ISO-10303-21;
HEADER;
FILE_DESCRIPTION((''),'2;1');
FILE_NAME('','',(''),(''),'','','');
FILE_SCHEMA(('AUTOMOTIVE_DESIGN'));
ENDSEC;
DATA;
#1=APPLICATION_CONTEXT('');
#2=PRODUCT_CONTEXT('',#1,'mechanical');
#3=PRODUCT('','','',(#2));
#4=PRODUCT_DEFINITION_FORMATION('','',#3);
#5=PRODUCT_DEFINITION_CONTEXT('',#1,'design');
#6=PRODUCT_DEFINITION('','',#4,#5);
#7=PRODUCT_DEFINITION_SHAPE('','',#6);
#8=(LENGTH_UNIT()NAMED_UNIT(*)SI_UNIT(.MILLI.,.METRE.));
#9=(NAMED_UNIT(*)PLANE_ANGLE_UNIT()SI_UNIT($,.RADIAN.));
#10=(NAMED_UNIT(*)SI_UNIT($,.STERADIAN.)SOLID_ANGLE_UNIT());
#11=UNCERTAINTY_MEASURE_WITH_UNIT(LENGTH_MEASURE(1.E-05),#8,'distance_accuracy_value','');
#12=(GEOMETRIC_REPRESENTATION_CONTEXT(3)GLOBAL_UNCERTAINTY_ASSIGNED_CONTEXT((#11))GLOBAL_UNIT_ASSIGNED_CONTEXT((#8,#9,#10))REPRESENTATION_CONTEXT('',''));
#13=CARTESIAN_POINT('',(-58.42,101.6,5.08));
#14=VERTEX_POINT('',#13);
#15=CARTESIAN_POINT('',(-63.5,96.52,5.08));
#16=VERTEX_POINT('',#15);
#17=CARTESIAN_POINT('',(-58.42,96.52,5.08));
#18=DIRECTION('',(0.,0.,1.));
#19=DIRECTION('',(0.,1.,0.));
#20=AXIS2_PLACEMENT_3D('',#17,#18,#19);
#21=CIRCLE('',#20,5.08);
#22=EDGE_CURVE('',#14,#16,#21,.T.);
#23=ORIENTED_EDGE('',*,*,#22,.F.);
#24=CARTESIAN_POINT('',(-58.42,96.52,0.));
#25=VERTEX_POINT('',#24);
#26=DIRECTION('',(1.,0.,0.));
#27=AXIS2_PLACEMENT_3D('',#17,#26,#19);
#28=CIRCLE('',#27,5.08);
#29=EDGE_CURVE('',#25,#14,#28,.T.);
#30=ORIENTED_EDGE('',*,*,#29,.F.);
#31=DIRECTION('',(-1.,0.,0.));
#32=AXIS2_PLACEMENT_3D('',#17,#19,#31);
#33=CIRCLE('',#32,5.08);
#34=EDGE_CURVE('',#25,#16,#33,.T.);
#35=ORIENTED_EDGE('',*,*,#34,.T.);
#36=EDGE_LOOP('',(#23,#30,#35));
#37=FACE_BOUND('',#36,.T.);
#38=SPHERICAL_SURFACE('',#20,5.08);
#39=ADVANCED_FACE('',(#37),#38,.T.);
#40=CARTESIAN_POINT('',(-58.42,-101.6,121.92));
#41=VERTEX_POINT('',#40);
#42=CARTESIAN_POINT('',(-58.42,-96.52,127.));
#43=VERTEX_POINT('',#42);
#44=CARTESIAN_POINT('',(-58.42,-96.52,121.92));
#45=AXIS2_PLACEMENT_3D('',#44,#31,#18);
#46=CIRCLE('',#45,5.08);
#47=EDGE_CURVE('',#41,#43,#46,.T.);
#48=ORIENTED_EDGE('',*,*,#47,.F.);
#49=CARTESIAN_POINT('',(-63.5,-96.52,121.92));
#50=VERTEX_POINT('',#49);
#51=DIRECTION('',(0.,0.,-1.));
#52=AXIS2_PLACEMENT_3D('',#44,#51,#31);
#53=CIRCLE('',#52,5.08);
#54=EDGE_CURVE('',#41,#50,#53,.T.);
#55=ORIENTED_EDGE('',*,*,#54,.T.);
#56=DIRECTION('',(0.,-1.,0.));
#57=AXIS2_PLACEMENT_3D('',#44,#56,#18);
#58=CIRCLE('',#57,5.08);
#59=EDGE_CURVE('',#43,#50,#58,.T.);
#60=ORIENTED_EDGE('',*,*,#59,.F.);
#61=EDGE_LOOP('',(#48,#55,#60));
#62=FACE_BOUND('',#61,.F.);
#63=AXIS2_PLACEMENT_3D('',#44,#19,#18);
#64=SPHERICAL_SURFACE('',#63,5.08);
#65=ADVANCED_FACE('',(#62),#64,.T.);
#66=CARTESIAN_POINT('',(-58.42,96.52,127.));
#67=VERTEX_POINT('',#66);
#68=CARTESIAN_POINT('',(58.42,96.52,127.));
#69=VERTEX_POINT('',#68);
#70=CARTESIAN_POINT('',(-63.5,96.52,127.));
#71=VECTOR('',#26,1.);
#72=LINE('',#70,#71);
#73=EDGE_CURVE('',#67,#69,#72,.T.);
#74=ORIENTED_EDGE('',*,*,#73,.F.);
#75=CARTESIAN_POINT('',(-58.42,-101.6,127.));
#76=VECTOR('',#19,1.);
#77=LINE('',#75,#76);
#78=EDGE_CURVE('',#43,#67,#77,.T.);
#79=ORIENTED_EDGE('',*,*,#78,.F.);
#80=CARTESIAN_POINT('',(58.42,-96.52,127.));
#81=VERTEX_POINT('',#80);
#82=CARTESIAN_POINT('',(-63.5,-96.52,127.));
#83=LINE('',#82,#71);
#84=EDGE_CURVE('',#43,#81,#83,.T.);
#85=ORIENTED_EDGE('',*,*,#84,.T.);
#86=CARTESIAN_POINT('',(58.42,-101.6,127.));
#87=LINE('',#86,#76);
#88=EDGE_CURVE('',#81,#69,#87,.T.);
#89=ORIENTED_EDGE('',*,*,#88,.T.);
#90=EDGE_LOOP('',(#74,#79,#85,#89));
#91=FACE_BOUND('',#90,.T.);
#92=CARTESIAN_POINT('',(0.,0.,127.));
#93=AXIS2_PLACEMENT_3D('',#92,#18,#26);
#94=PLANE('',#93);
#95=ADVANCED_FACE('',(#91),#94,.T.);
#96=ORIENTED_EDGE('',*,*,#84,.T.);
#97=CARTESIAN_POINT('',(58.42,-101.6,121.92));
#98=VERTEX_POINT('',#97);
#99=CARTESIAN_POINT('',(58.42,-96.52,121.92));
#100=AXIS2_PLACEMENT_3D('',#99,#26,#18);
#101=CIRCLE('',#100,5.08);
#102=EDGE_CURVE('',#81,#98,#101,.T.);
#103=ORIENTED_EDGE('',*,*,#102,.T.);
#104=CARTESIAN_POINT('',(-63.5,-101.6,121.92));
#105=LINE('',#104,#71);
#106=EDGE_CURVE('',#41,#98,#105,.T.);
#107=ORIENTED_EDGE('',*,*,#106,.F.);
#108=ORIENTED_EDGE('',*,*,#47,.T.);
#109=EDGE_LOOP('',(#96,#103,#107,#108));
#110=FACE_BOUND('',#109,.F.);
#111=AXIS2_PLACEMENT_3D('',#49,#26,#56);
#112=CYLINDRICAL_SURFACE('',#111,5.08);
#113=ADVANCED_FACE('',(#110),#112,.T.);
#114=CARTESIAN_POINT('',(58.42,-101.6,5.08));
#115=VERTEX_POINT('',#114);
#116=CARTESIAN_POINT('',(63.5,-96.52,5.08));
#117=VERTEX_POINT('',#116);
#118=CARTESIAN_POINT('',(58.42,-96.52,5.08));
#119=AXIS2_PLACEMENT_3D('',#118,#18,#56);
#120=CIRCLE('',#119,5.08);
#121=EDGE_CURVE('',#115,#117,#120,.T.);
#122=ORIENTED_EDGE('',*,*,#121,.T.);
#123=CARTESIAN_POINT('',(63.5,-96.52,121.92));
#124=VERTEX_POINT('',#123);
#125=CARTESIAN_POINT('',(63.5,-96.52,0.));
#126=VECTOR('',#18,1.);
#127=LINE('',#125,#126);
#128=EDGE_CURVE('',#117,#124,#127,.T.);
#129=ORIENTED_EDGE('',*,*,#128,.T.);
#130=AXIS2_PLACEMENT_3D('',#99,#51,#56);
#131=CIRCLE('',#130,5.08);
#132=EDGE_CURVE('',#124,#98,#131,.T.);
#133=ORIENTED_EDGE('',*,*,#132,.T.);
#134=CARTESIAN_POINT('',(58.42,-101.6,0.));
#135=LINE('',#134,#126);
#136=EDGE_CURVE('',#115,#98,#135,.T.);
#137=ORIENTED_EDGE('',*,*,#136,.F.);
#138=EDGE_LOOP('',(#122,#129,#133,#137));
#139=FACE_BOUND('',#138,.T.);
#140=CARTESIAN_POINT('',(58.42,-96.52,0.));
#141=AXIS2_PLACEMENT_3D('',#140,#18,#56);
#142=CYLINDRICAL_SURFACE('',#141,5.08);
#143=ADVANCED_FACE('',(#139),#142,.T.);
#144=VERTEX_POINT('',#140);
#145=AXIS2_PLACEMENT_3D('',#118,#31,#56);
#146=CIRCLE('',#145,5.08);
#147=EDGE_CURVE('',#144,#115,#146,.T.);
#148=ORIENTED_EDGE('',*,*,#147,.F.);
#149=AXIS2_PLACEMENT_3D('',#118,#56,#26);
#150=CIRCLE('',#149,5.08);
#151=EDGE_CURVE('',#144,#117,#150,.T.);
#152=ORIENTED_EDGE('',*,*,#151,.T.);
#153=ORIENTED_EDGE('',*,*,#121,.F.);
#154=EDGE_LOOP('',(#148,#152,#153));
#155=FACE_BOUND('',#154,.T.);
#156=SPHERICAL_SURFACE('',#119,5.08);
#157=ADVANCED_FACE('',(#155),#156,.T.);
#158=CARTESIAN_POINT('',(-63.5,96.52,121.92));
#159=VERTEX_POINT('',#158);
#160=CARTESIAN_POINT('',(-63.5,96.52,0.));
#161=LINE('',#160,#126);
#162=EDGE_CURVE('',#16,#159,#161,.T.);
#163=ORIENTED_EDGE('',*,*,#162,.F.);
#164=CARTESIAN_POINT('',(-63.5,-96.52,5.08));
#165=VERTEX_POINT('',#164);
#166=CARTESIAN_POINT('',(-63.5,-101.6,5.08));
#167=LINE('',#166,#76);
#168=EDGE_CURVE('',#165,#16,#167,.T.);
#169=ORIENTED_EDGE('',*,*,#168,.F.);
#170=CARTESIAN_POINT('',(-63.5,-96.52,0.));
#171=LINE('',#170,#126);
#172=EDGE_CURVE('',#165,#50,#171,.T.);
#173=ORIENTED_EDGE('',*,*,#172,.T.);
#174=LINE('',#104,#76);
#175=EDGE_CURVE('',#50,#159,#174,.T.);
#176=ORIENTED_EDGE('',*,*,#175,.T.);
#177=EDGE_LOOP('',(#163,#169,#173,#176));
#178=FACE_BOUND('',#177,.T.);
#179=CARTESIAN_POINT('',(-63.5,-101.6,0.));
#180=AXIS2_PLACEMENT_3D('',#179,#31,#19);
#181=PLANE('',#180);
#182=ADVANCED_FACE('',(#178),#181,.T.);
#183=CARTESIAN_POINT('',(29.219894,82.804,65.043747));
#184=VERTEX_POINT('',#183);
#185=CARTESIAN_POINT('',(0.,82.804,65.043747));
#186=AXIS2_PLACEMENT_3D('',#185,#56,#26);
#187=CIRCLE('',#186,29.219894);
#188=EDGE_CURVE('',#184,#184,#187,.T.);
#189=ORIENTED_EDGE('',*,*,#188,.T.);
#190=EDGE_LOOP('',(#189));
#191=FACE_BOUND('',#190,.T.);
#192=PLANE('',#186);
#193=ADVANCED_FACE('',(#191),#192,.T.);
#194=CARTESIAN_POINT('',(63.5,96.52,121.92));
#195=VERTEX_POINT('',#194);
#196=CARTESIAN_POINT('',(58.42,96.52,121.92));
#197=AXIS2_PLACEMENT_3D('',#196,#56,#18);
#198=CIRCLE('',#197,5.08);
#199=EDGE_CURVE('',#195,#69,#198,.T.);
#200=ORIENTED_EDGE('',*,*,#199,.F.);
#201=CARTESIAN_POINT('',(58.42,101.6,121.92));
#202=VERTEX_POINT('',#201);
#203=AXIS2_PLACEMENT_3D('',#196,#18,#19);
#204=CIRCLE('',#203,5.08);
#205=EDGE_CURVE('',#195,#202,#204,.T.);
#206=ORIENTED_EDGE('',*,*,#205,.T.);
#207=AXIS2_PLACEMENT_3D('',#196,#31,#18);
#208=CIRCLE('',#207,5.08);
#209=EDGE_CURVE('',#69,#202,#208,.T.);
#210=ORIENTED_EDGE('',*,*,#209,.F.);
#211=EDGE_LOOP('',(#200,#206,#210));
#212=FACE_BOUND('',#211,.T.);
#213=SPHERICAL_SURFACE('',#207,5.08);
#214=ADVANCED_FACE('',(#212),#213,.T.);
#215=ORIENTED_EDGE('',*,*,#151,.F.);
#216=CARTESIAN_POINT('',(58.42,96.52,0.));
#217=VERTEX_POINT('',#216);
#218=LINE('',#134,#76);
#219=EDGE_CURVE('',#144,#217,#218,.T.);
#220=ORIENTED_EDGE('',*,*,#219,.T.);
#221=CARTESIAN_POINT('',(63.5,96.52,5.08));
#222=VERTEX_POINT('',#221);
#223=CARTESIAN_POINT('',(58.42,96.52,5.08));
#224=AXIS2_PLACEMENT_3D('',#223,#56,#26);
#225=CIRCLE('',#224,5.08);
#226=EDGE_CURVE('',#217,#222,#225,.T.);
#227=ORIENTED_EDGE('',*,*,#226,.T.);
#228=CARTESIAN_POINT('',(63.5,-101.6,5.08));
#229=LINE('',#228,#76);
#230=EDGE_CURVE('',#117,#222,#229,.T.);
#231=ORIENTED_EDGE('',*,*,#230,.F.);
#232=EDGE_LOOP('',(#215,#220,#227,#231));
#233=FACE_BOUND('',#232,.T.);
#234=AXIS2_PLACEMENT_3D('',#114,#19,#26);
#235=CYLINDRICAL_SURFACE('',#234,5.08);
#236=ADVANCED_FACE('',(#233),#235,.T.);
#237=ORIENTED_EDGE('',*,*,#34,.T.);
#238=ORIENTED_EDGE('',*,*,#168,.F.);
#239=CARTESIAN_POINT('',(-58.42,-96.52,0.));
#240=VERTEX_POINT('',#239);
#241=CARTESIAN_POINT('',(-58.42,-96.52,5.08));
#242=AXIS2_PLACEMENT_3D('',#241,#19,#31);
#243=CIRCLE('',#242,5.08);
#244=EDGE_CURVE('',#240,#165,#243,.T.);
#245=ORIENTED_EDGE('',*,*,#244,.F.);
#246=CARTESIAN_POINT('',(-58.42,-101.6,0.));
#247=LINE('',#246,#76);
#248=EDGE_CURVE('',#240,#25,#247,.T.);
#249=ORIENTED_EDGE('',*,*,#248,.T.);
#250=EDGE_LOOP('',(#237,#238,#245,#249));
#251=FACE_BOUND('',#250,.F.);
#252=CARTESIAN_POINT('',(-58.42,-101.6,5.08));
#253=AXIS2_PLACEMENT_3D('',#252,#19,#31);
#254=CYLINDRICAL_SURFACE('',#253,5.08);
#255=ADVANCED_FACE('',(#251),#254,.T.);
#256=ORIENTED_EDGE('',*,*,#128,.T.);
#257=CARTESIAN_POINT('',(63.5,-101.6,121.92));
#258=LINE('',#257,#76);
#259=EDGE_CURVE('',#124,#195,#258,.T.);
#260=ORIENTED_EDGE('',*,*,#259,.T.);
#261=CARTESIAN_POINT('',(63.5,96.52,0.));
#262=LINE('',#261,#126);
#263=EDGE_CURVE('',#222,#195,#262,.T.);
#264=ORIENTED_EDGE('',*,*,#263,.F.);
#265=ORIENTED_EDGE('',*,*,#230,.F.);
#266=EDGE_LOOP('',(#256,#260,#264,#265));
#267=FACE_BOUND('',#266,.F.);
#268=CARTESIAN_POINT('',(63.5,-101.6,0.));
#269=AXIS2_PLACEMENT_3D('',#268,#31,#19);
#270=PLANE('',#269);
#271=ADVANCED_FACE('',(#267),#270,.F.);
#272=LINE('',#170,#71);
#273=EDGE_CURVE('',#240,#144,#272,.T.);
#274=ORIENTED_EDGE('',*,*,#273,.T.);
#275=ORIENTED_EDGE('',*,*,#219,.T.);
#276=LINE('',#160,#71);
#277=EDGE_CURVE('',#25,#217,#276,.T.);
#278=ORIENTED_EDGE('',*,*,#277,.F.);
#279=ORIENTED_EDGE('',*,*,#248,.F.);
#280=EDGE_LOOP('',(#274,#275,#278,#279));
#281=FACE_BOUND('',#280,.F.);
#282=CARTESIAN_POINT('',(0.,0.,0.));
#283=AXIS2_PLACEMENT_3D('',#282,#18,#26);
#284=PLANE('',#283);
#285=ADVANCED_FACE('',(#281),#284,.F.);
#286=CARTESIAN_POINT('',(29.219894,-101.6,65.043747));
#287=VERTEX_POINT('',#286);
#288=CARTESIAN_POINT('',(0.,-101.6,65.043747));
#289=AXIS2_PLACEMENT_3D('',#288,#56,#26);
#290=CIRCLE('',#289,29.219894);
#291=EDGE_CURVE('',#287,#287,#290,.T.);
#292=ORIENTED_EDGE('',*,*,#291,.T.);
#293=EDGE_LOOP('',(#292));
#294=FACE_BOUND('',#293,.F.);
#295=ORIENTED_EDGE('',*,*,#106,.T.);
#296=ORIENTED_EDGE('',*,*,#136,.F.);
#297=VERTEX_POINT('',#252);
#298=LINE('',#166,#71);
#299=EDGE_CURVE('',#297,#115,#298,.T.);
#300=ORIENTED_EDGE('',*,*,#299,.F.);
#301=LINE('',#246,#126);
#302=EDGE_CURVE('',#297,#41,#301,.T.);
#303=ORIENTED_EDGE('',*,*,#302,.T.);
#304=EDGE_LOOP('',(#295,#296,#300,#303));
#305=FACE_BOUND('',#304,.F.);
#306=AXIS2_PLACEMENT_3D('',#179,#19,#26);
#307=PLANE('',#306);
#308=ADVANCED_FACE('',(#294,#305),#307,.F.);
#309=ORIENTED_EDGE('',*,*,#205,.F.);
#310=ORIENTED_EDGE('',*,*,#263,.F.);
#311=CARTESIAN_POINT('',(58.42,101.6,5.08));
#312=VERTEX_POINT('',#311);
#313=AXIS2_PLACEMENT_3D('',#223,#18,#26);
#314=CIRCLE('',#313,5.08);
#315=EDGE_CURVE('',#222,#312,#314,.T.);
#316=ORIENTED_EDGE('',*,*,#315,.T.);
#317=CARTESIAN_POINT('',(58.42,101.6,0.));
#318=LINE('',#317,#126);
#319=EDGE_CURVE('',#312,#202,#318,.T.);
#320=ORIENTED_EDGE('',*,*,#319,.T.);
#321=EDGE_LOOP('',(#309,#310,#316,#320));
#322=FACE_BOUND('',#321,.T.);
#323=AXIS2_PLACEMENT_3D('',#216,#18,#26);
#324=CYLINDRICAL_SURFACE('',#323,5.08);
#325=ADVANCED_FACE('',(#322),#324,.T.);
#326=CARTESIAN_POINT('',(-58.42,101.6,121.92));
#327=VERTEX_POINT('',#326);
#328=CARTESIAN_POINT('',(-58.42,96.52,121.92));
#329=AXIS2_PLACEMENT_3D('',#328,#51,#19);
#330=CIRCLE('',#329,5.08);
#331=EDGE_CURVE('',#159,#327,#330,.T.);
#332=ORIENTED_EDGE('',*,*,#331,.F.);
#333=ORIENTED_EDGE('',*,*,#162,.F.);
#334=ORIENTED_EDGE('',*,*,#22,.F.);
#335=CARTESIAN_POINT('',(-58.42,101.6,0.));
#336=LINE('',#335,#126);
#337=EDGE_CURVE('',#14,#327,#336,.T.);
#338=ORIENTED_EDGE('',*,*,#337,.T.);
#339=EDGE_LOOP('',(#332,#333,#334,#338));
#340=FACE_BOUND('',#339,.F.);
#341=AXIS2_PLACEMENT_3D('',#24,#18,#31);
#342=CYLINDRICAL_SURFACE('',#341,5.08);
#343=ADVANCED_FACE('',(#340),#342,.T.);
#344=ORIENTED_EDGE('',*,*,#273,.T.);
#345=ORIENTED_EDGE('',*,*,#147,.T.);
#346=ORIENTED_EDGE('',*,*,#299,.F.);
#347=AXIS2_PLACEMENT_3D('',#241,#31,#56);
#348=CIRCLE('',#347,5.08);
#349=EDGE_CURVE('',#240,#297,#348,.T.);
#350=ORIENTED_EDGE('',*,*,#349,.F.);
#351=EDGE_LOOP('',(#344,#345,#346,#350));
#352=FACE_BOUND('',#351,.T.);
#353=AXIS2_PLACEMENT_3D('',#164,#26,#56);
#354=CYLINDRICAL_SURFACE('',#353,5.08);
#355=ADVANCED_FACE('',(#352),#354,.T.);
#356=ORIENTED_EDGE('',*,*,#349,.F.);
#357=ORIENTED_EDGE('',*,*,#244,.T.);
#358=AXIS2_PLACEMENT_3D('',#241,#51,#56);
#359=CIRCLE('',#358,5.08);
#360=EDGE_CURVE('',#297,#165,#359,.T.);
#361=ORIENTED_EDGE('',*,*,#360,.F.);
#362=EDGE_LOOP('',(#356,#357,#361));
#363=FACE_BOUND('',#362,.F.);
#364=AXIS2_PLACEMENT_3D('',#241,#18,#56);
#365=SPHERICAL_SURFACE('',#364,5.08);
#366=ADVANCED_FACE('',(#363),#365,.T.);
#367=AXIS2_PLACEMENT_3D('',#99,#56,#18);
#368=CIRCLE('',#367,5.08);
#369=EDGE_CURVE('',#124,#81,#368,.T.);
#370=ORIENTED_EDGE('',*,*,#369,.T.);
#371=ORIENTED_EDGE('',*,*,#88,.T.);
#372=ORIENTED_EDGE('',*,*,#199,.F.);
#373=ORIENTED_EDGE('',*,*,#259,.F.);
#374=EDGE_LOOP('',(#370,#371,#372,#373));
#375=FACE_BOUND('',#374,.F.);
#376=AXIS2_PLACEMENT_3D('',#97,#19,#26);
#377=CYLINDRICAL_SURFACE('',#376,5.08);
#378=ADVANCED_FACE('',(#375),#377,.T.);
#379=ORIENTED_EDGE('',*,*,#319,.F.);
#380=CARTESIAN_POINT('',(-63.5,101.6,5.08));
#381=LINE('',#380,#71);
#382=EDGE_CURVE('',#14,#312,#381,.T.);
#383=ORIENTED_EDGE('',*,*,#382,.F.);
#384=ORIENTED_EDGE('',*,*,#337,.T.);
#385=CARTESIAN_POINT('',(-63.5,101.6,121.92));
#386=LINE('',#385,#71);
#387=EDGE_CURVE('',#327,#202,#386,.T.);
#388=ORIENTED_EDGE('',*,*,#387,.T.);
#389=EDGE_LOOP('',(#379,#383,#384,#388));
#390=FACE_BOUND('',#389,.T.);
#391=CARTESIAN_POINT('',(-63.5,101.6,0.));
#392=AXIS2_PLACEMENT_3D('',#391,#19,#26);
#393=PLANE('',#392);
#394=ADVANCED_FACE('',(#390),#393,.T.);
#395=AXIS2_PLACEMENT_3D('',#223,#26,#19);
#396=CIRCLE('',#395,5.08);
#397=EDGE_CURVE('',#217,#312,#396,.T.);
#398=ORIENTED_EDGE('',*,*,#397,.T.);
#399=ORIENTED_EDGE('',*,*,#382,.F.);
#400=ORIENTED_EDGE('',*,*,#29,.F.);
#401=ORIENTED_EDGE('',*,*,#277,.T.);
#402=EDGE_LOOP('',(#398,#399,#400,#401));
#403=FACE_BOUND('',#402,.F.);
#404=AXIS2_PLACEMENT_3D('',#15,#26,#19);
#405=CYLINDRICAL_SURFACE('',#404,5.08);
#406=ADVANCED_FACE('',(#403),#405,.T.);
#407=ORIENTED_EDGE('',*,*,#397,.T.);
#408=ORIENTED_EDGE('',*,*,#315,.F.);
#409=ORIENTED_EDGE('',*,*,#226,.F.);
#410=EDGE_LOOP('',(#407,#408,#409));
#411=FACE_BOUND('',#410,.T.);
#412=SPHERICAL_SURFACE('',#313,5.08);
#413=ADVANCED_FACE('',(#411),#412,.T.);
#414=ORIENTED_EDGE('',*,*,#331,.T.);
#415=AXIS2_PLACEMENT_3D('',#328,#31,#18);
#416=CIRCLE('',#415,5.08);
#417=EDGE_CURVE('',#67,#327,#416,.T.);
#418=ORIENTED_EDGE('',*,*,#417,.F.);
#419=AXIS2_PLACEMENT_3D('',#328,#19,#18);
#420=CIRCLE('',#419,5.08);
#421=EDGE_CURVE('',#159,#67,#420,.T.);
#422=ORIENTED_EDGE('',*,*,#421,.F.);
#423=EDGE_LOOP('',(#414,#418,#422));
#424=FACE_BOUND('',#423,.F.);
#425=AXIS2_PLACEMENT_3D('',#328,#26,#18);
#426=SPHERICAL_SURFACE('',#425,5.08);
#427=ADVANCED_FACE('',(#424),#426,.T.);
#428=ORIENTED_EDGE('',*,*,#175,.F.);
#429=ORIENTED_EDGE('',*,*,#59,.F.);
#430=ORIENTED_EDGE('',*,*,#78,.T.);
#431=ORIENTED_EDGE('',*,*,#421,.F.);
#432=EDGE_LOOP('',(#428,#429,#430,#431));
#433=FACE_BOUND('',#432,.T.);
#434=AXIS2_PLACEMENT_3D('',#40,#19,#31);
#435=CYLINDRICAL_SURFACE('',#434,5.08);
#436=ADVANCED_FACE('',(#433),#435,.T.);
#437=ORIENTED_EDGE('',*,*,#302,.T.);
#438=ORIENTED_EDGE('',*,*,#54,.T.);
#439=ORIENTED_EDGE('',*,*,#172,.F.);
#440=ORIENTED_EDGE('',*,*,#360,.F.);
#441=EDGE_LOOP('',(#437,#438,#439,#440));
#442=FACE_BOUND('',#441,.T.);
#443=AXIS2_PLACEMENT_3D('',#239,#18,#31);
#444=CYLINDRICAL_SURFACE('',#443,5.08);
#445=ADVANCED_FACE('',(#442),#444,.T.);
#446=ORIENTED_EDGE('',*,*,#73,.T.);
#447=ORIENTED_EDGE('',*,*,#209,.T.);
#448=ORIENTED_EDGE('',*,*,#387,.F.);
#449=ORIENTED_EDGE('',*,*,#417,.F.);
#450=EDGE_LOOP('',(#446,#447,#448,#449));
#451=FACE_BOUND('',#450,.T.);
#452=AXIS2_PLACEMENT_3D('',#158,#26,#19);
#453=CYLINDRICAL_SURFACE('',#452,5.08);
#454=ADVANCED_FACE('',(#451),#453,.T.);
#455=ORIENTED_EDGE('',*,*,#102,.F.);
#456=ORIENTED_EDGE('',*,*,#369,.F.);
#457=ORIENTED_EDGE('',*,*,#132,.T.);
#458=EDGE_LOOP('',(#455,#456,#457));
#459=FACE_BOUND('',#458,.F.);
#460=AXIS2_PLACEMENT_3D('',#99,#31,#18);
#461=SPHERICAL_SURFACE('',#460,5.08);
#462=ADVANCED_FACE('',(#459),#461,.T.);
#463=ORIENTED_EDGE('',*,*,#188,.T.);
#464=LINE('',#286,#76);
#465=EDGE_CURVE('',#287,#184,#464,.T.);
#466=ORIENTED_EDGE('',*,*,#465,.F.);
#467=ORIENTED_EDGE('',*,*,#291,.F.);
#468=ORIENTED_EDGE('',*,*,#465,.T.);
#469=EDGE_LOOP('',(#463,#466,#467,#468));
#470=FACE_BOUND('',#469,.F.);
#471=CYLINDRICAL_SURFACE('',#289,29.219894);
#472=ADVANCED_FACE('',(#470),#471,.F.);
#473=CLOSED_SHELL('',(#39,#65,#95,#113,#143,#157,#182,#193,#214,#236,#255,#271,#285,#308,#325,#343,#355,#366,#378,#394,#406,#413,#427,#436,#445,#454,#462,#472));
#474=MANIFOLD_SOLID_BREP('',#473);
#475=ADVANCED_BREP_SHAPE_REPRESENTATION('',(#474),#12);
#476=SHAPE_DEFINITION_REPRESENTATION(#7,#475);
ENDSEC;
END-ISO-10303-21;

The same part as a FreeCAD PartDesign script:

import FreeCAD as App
import Part
import Sketcher
Q = App.Units.Quantity


def add_polygon(sketch, points):
    """Adds a closed chain of lines whose ends are joined by coincident constraints."""
    first, n = sketch.GeometryCount, len(points)
    for a, b in zip(points, points[1:] + points[:1]):
        sketch.addGeometry(Part.LineSegment(App.Vector(*a, 0), App.Vector(*b, 0)), False)
    for i in range(n):
        sketch.addConstraint(Sketcher.Constraint("Coincident", first + i, 2, first + (i + 1) % n, 1))

doc = App.newDocument("Part")
body = doc.addObject("PartDesign::Body", "Body")

# Sketch on XY plane
sketch1 = body.newObject("Sketcher::SketchObject", "Sketch")
sketch1.AttachmentSupport = (doc.getObject("XY_Plane"), [""])
sketch1.MapMode = "FlatFace"
add_polygon(sketch1, [(-64, 102), (-64, -102), (64, -102), (64, 102)])  # lines 0-3
sketch1.addConstraint([
    Sketcher.Constraint("Vertical", 0),
    Sketcher.Constraint("Horizontal", 1),
    Sketcher.Constraint("Vertical", 2),
    Sketcher.Constraint("Horizontal", 3),
    Sketcher.Constraint("Symmetric", 0, 2, 2, 2, -1, 1),
    Sketcher.Constraint("DistanceX", 1, 1, 1, 2, Q("5 in")),
    Sketcher.Constraint("DistanceY", 0, 2, 0, 1, Q("8 in")),
])
pad1 = body.newObject("PartDesign::Pad", "Pad")
pad1.Profile = sketch1
pad1.Length = Q("5 in")
doc.recompute()

fillet = body.newObject("PartDesign::Fillet", "Fillet")
fillet.Base = (pad1, ["Edge1"])
fillet.UseAllEdges = True
fillet.Radius = Q("0.2 in")

# Sketch on XZ plane
sketch2 = body.newObject("Sketcher::SketchObject", "Sketch001")
sketch2.AttachmentSupport = (doc.getObject("XZ_Plane"), [""])
sketch2.MapMode = "FlatFace"
sketch2.AttachmentOffset = App.Placement(App.Vector(0, 0, 4 * 25.4), App.Rotation())
sketch2.addGeometry(Part.Circle(App.Vector(0, 65, 0), App.Vector(0, 0, 1), 29), False)
sketch2.addConstraint([
    Sketcher.Constraint("PointOnObject", 0, 3, -2),
    Sketcher.Constraint("Diameter", 0, Q("58.439788 mm")),
    Sketcher.Constraint("DistanceY", -1, 1, 0, 3, Q("65.043747 mm")),
])
pocket1 = body.newObject("PartDesign::Pocket", "Pocket")
pocket1.Profile = sketch2
pocket1.Length = Q("7.26 in")

doc.recompute()
